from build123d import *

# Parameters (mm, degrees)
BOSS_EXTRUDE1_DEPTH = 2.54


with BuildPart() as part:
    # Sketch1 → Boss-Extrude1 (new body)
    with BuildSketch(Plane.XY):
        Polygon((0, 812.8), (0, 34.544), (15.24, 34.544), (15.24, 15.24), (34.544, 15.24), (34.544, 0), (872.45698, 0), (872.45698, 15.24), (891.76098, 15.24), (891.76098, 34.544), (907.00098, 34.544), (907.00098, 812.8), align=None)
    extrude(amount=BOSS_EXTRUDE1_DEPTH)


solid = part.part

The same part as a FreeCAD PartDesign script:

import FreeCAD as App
import Part
import Sketcher

V = App.Vector
Q = App.Units.Quantity


def add_polygon(sketch, points):
    """Adds a closed chain of lines whose ends are joined by coincident constraints."""
    first, n = sketch.GeometryCount, len(points)
    for a, b in zip(points, points[1:] + points[:1]):
        sketch.addGeometry(Part.LineSegment(App.Vector(*a, 0), App.Vector(*b, 0)), False)
    for i in range(n):
        sketch.addConstraint(Sketcher.Constraint("Coincident", first + i, 2, first + (i + 1) % n, 1))

doc = App.newDocument("Part")
body = doc.addObject("PartDesign::Body", "Body")

sketch1 = doc.addObject("Sketcher::SketchObject", "Sketch")
body.addObject(sketch1)
sketch1.AttachmentSupport = (doc.XY_Plane, [""])
sketch1.MapMode = "FlatFace"
add_polygon(sketch1, [(0, 813), (0, 35), (15, 35), (15, 15), (35, 15), (35, 0), (872, 0), (872, 15), (892, 15), (892, 35), (907, 35), (907, 813)])
sketch1.addConstraint([
    Sketcher.Constraint("Vertical", 0),
    Sketcher.Constraint("Horizontal", 1),
    Sketcher.Constraint("Vertical", 2),
    Sketcher.Constraint("Horizontal", 3),
    Sketcher.Constraint("Vertical", 4),
    Sketcher.Constraint("Horizontal", 5),
    Sketcher.Constraint("Vertical", 6),
    Sketcher.Constraint("Horizontal", 7),
    Sketcher.Constraint("Vertical", 8),
    Sketcher.Constraint("Horizontal", 9),
    Sketcher.Constraint("Vertical", 10),
    Sketcher.Constraint("Horizontal", 11),
    Sketcher.Constraint("PointOnObject", 0, 2, -2),
    Sketcher.Constraint("PointOnObject", 4, 2, -1),
    Sketcher.Constraint("Horizontal", 3, 2, 6, 2),
    Sketcher.Constraint("Horizontal", 1, 2, 8, 2),
    Sketcher.Constraint("Equal", 3, 7),
    Sketcher.Constraint("Equal", 1, 9),
    Sketcher.Constraint("Equal", 7, 2),
    Sketcher.Constraint("Equal", 9, 4),
    Sketcher.Constraint("DistanceX", 1, 1, 1, 2, Q("0.6 in")),
    Sketcher.Constraint("DistanceY", -1, 1, 10, 2, Q("32 in")),
    Sketcher.Constraint("DistanceX", 3, 1, 3, 2, Q("0.76 in")),
    Sketcher.Constraint("DistanceX", 5, 1, 5, 2, Q("32.9887 in")),
])
pad1 = doc.addObject("PartDesign::Pad", "Pad")
body.addObject(pad1)
pad1.Profile = sketch1
pad1.Length = Q("0.1 in")

doc.recompute()
